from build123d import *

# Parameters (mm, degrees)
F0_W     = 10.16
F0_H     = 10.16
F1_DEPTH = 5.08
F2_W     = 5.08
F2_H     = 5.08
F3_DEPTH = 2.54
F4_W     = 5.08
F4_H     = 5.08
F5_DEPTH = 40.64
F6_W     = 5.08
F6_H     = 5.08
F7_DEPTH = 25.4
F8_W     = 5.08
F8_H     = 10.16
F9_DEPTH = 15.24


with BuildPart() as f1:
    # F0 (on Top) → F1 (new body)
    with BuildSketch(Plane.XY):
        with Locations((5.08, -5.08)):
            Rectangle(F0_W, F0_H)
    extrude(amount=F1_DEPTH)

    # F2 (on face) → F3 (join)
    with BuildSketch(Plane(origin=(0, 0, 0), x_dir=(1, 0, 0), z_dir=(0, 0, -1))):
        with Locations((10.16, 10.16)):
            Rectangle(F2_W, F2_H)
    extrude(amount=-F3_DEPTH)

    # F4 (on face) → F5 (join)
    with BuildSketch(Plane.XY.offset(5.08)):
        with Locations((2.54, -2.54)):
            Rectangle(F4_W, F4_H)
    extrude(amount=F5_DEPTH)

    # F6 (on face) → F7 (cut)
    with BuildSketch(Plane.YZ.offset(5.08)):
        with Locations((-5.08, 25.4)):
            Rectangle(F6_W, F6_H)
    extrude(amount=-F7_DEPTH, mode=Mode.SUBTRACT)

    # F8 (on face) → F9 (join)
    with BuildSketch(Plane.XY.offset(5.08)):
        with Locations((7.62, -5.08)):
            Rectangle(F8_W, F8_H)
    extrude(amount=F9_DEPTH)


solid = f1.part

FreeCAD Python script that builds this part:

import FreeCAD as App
import Part
import Sketcher
Q = App.Units.Quantity


def add_polygon(sketch, points):
    """Adds a closed chain of lines whose ends are joined by coincident constraints."""
    first, n = sketch.GeometryCount, len(points)
    for a, b in zip(points, points[1:] + points[:1]):
        sketch.addGeometry(Part.LineSegment(App.Vector(*a, 0), App.Vector(*b, 0)), False)
    for i in range(n):
        sketch.addConstraint(Sketcher.Constraint("Coincident", first + i, 2, first + (i + 1) % n, 1))

doc = App.newDocument("Part")
body = doc.addObject("PartDesign::Body", "Body")

# Sketch on XY plane
sketch1 = body.newObject("Sketcher::SketchObject", "Sketch")
sketch1.AttachmentSupport = (doc.getObject("XY_Plane"), [""])
sketch1.MapMode = "FlatFace"
add_polygon(sketch1, [(0, 0), (0, -10), (10, -10), (10, 0)])  # lines 0-3
sketch1.addConstraint([
    Sketcher.Constraint("Vertical", 0),
    Sketcher.Constraint("Horizontal", 1),
    Sketcher.Constraint("Vertical", 2),
    Sketcher.Constraint("Horizontal", 3),
    Sketcher.Constraint("Coincident", 3, 2, -1, 1),
    Sketcher.Constraint("Equal", 3, 0),
    Sketcher.Constraint("DistanceX", 1, 1, 1, 2, Q("0.4 in")),
])
pad1 = body.newObject("PartDesign::Pad", "Pad")
pad1.Profile = sketch1
pad1.Length = Q("0.2 in")

# Sketch on XY plane
sketch2 = body.newObject("Sketcher::SketchObject", "Sketch001")
sketch2.AttachmentSupport = (doc.getObject("XY_Plane"), [""])
sketch2.MapMode = "FlatFace"
add_polygon(sketch2, [(8, -13), (8, -8), (13, -8), (13, -13)])  # lines 0-3
sketch2.addConstraint([
    Sketcher.Constraint("Vertical", 0),
    Sketcher.Constraint("Horizontal", 1),
    Sketcher.Constraint("Vertical", 2),
    Sketcher.Constraint("Horizontal", 3),
    Sketcher.Constraint("Equal", 3, 0),
    Sketcher.Constraint("DistanceX", 1, 1, 1, 2, Q("0.2 in")),
    Sketcher.Constraint("DistanceX", -1, 1, 0, 2, Q("0.3 in")),
    Sketcher.Constraint("DistanceY", 0, 2, -1, 1, Q("0.3 in")),
])
pad2 = body.newObject("PartDesign::Pad", "Pad001")
pad2.Profile = sketch2
pad2.Length = Q("0.1 in")

# Sketch on XY plane
sketch3 = body.newObject("Sketcher::SketchObject", "Sketch002")
sketch3.AttachmentSupport = (doc.getObject("XY_Plane"), [""])
sketch3.MapMode = "FlatFace"
sketch3.AttachmentOffset = App.Placement(App.Vector(0, 0, 0.2 * 25.4), App.Rotation())
add_polygon(sketch3, [(0, 0), (0, -5), (5, -5), (5, 0)])  # lines 0-3
sketch3.addConstraint([
    Sketcher.Constraint("Vertical", 0),
    Sketcher.Constraint("Horizontal", 1),
    Sketcher.Constraint("Vertical", 2),
    Sketcher.Constraint("Horizontal", 3),
    Sketcher.Constraint("Coincident", 3, 2, -1, 1),
    Sketcher.Constraint("Equal", 3, 0),
    Sketcher.Constraint("DistanceX", 1, 1, 1, 2, Q("0.2 in")),
])
pad3 = body.newObject("PartDesign::Pad", "Pad002")
pad3.Profile = sketch3
pad3.Length = Q("1.6 in")

# Sketch on YZ plane
sketch4 = body.newObject("Sketcher::SketchObject", "Sketch003")
sketch4.AttachmentSupport = (doc.getObject("YZ_Plane"), [""])
sketch4.MapMode = "FlatFace"
sketch4.AttachmentOffset = App.Placement(App.Vector(0, 0, 0.2 * 25.4), App.Rotation())
add_polygon(sketch4, [(-8, 28), (-8, 23), (-3, 23), (-3, 28)])  # lines 0-3
sketch4.addConstraint([
    Sketcher.Constraint("Vertical", 0),
    Sketcher.Constraint("Horizontal", 1),
    Sketcher.Constraint("Vertical", 2),
    Sketcher.Constraint("Horizontal", 3),
    Sketcher.Constraint("Equal", 3, 0),
    Sketcher.Constraint("DistanceX", 1, 1, 1, 2, Q("0.2 in")),
    Sketcher.Constraint("DistanceX", 0, 2, -1, 1, Q("0.3 in")),
    Sketcher.Constraint("DistanceY", -1, 1, 0, 2, Q("0.9 in")),
])
pocket1 = body.newObject("PartDesign::Pocket", "Pocket")
pocket1.Profile = sketch4
pocket1.Length = Q("1 in")

# Sketch on XY plane
sketch5 = body.newObject("Sketcher::SketchObject", "Sketch004")
sketch5.AttachmentSupport = (doc.getObject("XY_Plane"), [""])
sketch5.MapMode = "FlatFace"
sketch5.AttachmentOffset = App.Placement(App.Vector(0, 0, 0.2 * 25.4), App.Rotation())
add_polygon(sketch5, [(5, 0), (5, -10), (10, -10), (10, 0)])  # lines 0-3
sketch5.addConstraint([
    Sketcher.Constraint("Vertical", 0),
    Sketcher.Constraint("Horizontal", 1),
    Sketcher.Constraint("Vertical", 2),
    Sketcher.Constraint("Horizontal", 3),
    Sketcher.Constraint("PointOnObject", 2, 2, -1),
    Sketcher.Constraint("DistanceX", 1, 1, 1, 2, Q("0.2 in")),
    Sketcher.Constraint("DistanceY", 0, 2, 0, 1, Q("0.4 in")),
    Sketcher.Constraint("DistanceX", -1, 1, 0, 2, Q("0.2 in")),
])
pad4 = body.newObject("PartDesign::Pad", "Pad003")
pad4.Profile = sketch5
pad4.Length = Q("0.6 in")

doc.recompute()
